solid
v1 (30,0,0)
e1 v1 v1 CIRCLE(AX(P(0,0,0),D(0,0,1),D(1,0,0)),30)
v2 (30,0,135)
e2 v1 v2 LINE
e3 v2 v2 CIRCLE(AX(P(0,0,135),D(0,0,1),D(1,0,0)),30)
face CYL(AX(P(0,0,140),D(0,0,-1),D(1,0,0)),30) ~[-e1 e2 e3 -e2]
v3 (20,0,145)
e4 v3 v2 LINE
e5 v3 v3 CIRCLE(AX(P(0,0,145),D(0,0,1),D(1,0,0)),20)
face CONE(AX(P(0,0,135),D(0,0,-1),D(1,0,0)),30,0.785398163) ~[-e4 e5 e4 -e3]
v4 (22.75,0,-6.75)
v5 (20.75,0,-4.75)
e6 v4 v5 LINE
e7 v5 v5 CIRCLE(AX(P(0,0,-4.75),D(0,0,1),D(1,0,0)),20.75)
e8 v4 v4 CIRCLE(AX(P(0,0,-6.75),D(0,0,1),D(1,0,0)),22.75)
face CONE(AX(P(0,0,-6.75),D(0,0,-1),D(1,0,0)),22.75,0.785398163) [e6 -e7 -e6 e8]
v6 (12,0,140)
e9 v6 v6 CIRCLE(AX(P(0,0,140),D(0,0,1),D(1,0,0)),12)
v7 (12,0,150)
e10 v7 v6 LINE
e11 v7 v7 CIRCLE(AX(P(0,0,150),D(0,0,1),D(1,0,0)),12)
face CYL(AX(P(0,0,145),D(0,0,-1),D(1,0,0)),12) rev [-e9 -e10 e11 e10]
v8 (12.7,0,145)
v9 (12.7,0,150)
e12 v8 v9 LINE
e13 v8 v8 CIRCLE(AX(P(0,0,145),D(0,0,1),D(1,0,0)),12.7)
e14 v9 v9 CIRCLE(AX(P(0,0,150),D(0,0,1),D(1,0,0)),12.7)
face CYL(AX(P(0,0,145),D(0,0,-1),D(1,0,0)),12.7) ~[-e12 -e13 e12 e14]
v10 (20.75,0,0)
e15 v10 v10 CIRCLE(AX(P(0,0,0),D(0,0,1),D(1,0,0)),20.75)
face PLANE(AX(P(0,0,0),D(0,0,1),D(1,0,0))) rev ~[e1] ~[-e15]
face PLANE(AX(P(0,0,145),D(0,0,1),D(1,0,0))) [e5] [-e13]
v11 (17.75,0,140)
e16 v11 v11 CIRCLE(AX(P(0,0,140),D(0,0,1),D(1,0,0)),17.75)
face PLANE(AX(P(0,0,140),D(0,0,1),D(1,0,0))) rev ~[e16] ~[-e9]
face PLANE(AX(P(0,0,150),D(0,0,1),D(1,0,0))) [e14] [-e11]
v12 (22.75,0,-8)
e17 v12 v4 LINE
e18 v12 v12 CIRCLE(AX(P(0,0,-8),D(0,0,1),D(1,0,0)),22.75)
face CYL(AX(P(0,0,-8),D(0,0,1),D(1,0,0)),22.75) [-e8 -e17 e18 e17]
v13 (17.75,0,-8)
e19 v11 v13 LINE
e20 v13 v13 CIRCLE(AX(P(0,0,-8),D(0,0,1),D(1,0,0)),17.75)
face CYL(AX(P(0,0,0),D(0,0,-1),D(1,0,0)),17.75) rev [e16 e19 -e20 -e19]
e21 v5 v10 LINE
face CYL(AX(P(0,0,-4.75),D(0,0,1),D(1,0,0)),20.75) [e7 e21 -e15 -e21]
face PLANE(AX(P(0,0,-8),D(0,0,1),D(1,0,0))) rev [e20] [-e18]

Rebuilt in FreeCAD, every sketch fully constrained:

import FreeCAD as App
import Part
import Sketcher

V = App.Vector
Q = App.Units.Quantity


def edges_at(feature, points):
    """Names of the edges that pass closest to the given points."""
    edges = feature.Shape.Edges
    near = lambda p: min(range(len(edges)), key=lambda i: edges[i].distToShape(Part.Vertex(*p))[0])
    return sorted({f"Edge{near(p) + 1}" for p in points})


def add_polygon(sketch, points):
    """Adds a closed chain of lines whose ends are joined by coincident constraints."""
    first, n = sketch.GeometryCount, len(points)
    for a, b in zip(points, points[1:] + points[:1]):
        sketch.addGeometry(Part.LineSegment(App.Vector(*a, 0), App.Vector(*b, 0)), False)
    for i in range(n):
        sketch.addConstraint(Sketcher.Constraint("Coincident", first + i, 2, first + (i + 1) % n, 1))

doc = App.newDocument("Part")
body = doc.addObject("PartDesign::Body", "Body")

# Sketch on XY plane
sketch1 = doc.addObject("Sketcher::SketchObject", "Sketch")
body.addObject(sketch1)
sketch1.AttachmentSupport = (doc.XY_Plane, [""])
sketch1.MapMode = "FlatFace"
sketch1.addGeometry([
    Part.Circle(V(0, 0, 0), V(0, 0, 1), 30),
    Part.Circle(V(0, 0, 0), V(0, 0, 1), 18),
], False)
sketch1.addConstraint([
    Sketcher.Constraint("Coincident", 0, 3, -1, 1),
    Sketcher.Constraint("Coincident", 1, 3, -1, 1),
    Sketcher.Constraint("Diameter", 0, Q("60 mm")),
    Sketcher.Constraint("Diameter", 1, Q("35.5 mm")),
])
pad1 = doc.addObject("PartDesign::Pad", "Pad")
body.addObject(pad1)
pad1.Profile = sketch1
pad1.Length = 140

# Sketch on XZ plane
sketch2 = doc.addObject("Sketcher::SketchObject", "Sketch001")
body.addObject(sketch2)
sketch2.AttachmentSupport = (doc.XZ_Plane, [""])
sketch2.MapMode = "FlatFace"
add_polygon(sketch2, [(17.8, -8), (17.8, 0), (20.8, 0), (20.8, -4.8), (22.8, -6.8), (22.8, -8)])  # lines 0-5
sketch2.addConstraint([
    Sketcher.Constraint("Vertical", 0),
    Sketcher.Constraint("Horizontal", 1),
    Sketcher.Constraint("Vertical", 2),
    Sketcher.Constraint("Vertical", 4),
    Sketcher.Constraint("Horizontal", 5),
    Sketcher.Constraint("PointOnObject", 0, 2, -1),
    Sketcher.Constraint("DistanceX", 1, 1, 1, 2, Q("3 mm")),
    Sketcher.Constraint("DistanceX", 5, 2, 5, 1, Q("5 mm")),
    Sketcher.Constraint("DistanceY", 0, 1, 0, 2, Q("8 mm")),
    Sketcher.Constraint("Angle", 3, Q("-45 deg")),
    Sketcher.Constraint("DistanceY", 4, 2, 4, 1, Q("1.25 mm")),
    Sketcher.Constraint("DistanceX", -1, 1, 0, 2, Q("17.75 mm")),
])
revolution = doc.addObject("PartDesign::Revolution", "Revolution")
body.addObject(revolution)
revolution.Profile = sketch2
revolution.ReferenceAxis = (sketch2, ["V_Axis"])
revolution.Angle = 360

# Sketch on XY plane
sketch3 = doc.addObject("Sketcher::SketchObject", "Sketch002")
body.addObject(sketch3)
sketch3.AttachmentSupport = (doc.XY_Plane, [""])
sketch3.MapMode = "FlatFace"
sketch3.AttachmentOffset = App.Placement(V(0, 0, 140), App.Rotation())
sketch3.addGeometry([
    Part.Circle(V(0, 0, 0), V(0, 0, 1), 30),
    Part.Circle(V(0, 0, 0), V(0, 0, 1), 12),
], False)
sketch3.addConstraint([
    Sketcher.Constraint("Coincident", 0, 3, -1, 1),
    Sketcher.Constraint("Coincident", 1, 3, -1, 1),
    Sketcher.Constraint("Diameter", 1, Q("24 mm")),
    Sketcher.Constraint("Diameter", 0, Q("60 mm")),
])
pad2 = doc.addObject("PartDesign::Pad", "Pad001")
body.addObject(pad2)
pad2.Profile = sketch3
pad2.Length = 5

# Sketch on XY plane
sketch4 = doc.addObject("Sketcher::SketchObject", "Sketch003")
body.addObject(sketch4)
sketch4.AttachmentSupport = (doc.XY_Plane, [""])
sketch4.MapMode = "FlatFace"
sketch4.AttachmentOffset = App.Placement(V(0, 0, 145), App.Rotation())
sketch4.addGeometry([
    Part.Circle(V(0, 0, 0), V(0, 0, 1), 13),
    Part.Circle(V(0, 0, 0), V(0, 0, 1), 12),
], False)
sketch4.addConstraint([
    Sketcher.Constraint("Coincident", 0, 3, -1, 1),
    Sketcher.Constraint("Coincident", 1, 3, -1, 1),
    Sketcher.Constraint("Diameter", 0, Q("25.4 mm")),
    Sketcher.Constraint("Diameter", 1, Q("24 mm")),
])
pad3 = doc.addObject("PartDesign::Pad", "Pad002")
body.addObject(pad3)
pad3.Profile = sketch4
pad3.Length = 5
doc.recompute()

chamfer = doc.addObject("PartDesign::Chamfer", "Chamfer")
body.addObject(chamfer)
chamfer.Base = (pad3, edges_at(pad3, [(-30, 0, 145)]))
chamfer.Size = 10

doc.recompute()
